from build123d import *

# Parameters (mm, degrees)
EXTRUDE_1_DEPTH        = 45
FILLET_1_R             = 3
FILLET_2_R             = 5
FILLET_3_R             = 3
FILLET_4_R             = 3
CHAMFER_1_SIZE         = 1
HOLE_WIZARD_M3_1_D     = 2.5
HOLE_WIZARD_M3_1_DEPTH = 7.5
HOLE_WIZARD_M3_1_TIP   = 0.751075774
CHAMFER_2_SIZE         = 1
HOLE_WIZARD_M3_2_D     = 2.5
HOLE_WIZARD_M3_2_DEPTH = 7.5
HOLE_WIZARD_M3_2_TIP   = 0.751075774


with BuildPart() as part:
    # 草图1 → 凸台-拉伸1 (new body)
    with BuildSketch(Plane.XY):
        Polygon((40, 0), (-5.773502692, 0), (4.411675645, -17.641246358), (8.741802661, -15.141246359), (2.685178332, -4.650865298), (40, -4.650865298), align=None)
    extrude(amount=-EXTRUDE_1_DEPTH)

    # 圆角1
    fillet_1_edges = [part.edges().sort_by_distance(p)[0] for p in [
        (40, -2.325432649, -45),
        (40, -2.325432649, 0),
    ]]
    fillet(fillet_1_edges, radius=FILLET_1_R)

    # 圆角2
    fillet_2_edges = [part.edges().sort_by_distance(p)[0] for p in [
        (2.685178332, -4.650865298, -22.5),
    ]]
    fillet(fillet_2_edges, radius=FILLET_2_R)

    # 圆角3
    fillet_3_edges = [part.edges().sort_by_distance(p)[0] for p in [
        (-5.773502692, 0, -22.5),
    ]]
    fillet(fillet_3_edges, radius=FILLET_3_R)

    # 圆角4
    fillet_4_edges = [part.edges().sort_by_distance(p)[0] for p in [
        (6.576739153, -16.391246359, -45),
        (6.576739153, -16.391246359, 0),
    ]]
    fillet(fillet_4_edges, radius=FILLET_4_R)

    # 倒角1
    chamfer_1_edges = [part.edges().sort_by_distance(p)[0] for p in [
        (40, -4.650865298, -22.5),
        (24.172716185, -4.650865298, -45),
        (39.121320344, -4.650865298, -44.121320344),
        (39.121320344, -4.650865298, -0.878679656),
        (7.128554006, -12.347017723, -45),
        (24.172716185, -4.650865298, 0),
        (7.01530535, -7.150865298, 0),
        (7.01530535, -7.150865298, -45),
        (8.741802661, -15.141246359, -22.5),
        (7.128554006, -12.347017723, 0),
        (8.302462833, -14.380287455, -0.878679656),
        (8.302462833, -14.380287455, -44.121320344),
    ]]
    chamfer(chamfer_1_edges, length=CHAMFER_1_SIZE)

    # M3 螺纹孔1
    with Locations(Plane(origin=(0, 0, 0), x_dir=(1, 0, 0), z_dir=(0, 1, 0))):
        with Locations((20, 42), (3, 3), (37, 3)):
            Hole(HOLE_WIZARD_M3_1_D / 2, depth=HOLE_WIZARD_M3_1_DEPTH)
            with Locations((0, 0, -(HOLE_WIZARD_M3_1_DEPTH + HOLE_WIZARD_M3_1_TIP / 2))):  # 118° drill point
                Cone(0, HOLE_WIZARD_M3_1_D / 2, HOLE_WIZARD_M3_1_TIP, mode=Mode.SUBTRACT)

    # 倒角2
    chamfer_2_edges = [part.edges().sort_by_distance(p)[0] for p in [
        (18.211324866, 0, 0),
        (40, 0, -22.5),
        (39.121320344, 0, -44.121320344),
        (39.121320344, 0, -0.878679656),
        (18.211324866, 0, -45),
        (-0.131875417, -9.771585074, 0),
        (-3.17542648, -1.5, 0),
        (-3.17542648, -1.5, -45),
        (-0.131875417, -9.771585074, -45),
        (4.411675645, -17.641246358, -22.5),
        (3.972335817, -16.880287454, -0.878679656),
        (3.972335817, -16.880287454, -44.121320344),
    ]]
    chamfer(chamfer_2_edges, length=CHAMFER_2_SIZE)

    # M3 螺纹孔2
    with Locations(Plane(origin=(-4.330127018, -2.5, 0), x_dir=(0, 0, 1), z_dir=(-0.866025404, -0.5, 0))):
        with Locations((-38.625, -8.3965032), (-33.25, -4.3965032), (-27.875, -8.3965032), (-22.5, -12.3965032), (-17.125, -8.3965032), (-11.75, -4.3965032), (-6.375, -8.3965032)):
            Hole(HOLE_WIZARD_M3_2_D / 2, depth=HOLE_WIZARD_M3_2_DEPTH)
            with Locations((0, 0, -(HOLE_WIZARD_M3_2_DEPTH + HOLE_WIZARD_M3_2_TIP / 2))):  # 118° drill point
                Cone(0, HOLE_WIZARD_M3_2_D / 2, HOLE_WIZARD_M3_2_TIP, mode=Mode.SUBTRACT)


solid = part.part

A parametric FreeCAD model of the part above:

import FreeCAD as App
import Part
import Sketcher

V = App.Vector
Q = App.Units.Quantity


def edges_at(feature, points):
    """Names of the edges that pass closest to the given points."""
    edges = feature.Shape.Edges
    near = lambda p: min(range(len(edges)), key=lambda i: edges[i].distToShape(Part.Vertex(*p))[0])
    return sorted({f"Edge{near(p) + 1}" for p in points})

doc = App.newDocument("Part")
body = doc.addObject("PartDesign::Body", "Body")

# Sketch on XY plane
sketch1 = doc.addObject("Sketcher::SketchObject", "Sketch")
body.addObject(sketch1)
sketch1.AttachmentSupport = (doc.XY_Plane, [""])
sketch1.MapMode = "FlatFace"
sketch1.addGeometry(Part.LineSegment(V(40, 0, 0), V(-5.8, 0, 0)), False)
sketch1.addGeometry(Part.LineSegment(V(-5.8, 0, 0), V(4.4, -17.6, 0)), False)
sketch1.addGeometry(Part.LineSegment(V(4.4, -17.6, 0), V(8.7, -15.1, 0)), False)
sketch1.addGeometry(Part.LineSegment(V(8.7, -15.1, 0), V(2.7, -4.7, 0)), False)
sketch1.addGeometry(Part.LineSegment(V(2.7, -4.7, 0), V(40, -4.7, 0)), False)
sketch1.addGeometry(Part.LineSegment(V(40, -4.7, 0), V(40, 0, 0)), False)
sketch1.addConstraint(Sketcher.Constraint("Coincident", 0, 2, 1, 1))
sketch1.addConstraint(Sketcher.Constraint("Coincident", 1, 2, 2, 1))
sketch1.addConstraint(Sketcher.Constraint("Coincident", 2, 2, 3, 1))
sketch1.addConstraint(Sketcher.Constraint("Coincident", 3, 2, 4, 1))
sketch1.addConstraint(Sketcher.Constraint("Coincident", 4, 2, 5, 1))
sketch1.addConstraint(Sketcher.Constraint("Coincident", 5, 2, 0, 1))
sketch1.addConstraint(Sketcher.Constraint("Horizontal", 0))
sketch1.addConstraint(Sketcher.Constraint("Horizontal", 4))
sketch1.addConstraint(Sketcher.Constraint("Vertical", 5))
sketch1.addConstraint(Sketcher.Constraint("PointOnObject", 0, 2, -1))
sketch1.addConstraint(Sketcher.Constraint("Perpendicular", 1, 2))
sketch1.addConstraint(Sketcher.Constraint("Perpendicular", 2, 3))
sketch1.addConstraint(Sketcher.Constraint("Angle", 1, Q("-60 deg")))
sketch1.addConstraint(Sketcher.Constraint("Distance", 2, Q("5 mm")))
sketch1.addConstraint(Sketcher.Constraint("DistanceX", -1, 1, 4, 2, Q("40 mm")))
sketch1.addConstraint(Sketcher.Constraint("DistanceX", 4, 1, 4, 2, Q("37.314822 mm")))
sketch1.addConstraint(Sketcher.Constraint("Distance", 3, Q("12.113249 mm")))
sketch1.addConstraint(Sketcher.Constraint("DistanceX", 0, 2, 0, 1, Q("45.773503 mm")))
pad1 = doc.addObject("PartDesign::Pad", "Pad")
body.addObject(pad1)
pad1.Profile = sketch1
pad1.Length = 45
pad1.Reversed = True
doc.recompute()

fillet = doc.addObject("PartDesign::Fillet", "Fillet")
body.addObject(fillet)
fillet.Base = (pad1, edges_at(pad1, [(40, -2.325, -45), (40, -2.325, 0)]))
fillet.Radius = 3
doc.recompute()

fillet2 = doc.addObject("PartDesign::Fillet", "Fillet001")
body.addObject(fillet2)
fillet2.Base = (fillet, edges_at(fillet, [(2.685, -4.651, -22.5)]))
fillet2.Radius = 5
doc.recompute()

fillet3 = doc.addObject("PartDesign::Fillet", "Fillet002")
body.addObject(fillet3)
fillet3.Base = (fillet2, edges_at(fillet2, [(-5.774, 0, -22.5)]))
fillet3.Radius = 3
doc.recompute()

fillet4 = doc.addObject("PartDesign::Fillet", "Fillet003")
body.addObject(fillet4)
fillet4.Base = (fillet3, edges_at(fillet3, [(6.577, -16.391, -45), (6.577, -16.391, 0)]))
fillet4.Radius = 3
doc.recompute()

chamfer = doc.addObject("PartDesign::Chamfer", "Chamfer")
body.addObject(chamfer)
chamfer.Base = (fillet4, edges_at(fillet4, [
    (40, -4.651, -22.5),
    (24.173, -4.651, -45),
    (39.121, -4.651, -44.121),
    (39.121, -4.651, -0.879),
    (7.129, -12.347, -45),
    (24.173, -4.651, 0),
    (7.015, -7.151, 0),
    (7.015, -7.151, -45),
    (8.742, -15.141, -22.5),
    (7.129, -12.347, 0),
    (8.302, -14.38, -0.879),
    (8.302, -14.38, -44.121),
]))
chamfer.Size = 1

# Sketch on XZ plane
sketch2 = doc.addObject("Sketcher::SketchObject", "Sketch001")
body.addObject(sketch2)
sketch2.AttachmentSupport = (doc.XZ_Plane, [""])
sketch2.MapMode = "FlatFace"
sketch2.addGeometry(Part.Circle(V(20, -42, 0), V(0, 0, 1), 1.2), False)
sketch2.addGeometry(Part.Circle(V(3, -3, 0), V(0, 0, 1), 1.2), False)
sketch2.addGeometry(Part.Circle(V(37, -3, 0), V(0, 0, 1), 1.2), False)
sketch2.addConstraint(Sketcher.Constraint("Equal", 0, 1))
sketch2.addConstraint(Sketcher.Constraint("Equal", 1, 2))
sketch2.addConstraint(Sketcher.Constraint("Horizontal", 1, 3, 2, 3))
sketch2.addConstraint(Sketcher.Constraint("Diameter", 0, Q("2.5 mm")))
sketch2.addConstraint(Sketcher.Constraint("DistanceX", -1, 1, 0, 3, Q("20 mm")))
sketch2.addConstraint(Sketcher.Constraint("DistanceY", 0, 3, -1, 1, Q("42 mm")))
sketch2.addConstraint(Sketcher.Constraint("DistanceX", -1, 1, 1, 3, Q("3 mm")))
sketch2.addConstraint(Sketcher.Constraint("DistanceY", 1, 3, -1, 1, Q("3 mm")))
sketch2.addConstraint(Sketcher.Constraint("DistanceX", -1, 1, 2, 3, Q("37 mm")))
doc.recompute()
hole = doc.addObject("PartDesign::Hole", "Hole")
body.addObject(hole)
hole.Profile = sketch2
hole.ThreadType = "None"
hole.Diameter = 2.5
hole.DepthType = "Dimension"
hole.Depth = 7.5
hole.DrillPoint = "Angled"
hole.DrillPointAngle = 118
hole.Reversed = True
doc.recompute()

chamfer2 = doc.addObject("PartDesign::Chamfer", "Chamfer001")
body.addObject(chamfer2)
chamfer2.Base = (hole, edges_at(hole, [
    (18.211, 0, 0),
    (40, 0, -22.5),
    (39.121, 0, -44.121),
    (39.121, 0, -0.879),
    (18.211, 0, -45),
    (-0.132, -9.772, 0),
    (-3.175, -1.5, 0),
    (-3.175, -1.5, -45),
    (-0.132, -9.772, -45),
    (4.412, -17.641, -22.5),
    (3.972, -16.88, -0.879),
    (3.972, -16.88, -44.121),
]))
chamfer2.Size = 1

# Sketch on an angled plane
sketch3 = doc.addObject("Sketcher::SketchObject", "Sketch002")
body.addObject(sketch3)
sketch3.Placement = App.Placement(V(-4.330127, -2.5, 0), App.Rotation(V(0, 0, 1), V(-0.5, 0.866025404, 0), V(-0.866025404, -0.5, 0), "ZXY"))
sketch3.addGeometry(Part.Circle(V(-38.6, -8.4, 0), V(0, 0, 1), 1.2), False)
sketch3.addGeometry(Part.Circle(V(-33.2, -4.4, 0), V(0, 0, 1), 1.2), False)
sketch3.addGeometry(Part.Circle(V(-27.9, -8.4, 0), V(0, 0, 1), 1.2), False)
sketch3.addGeometry(Part.Circle(V(-22.5, -12.4, 0), V(0, 0, 1), 1.2), False)
sketch3.addGeometry(Part.Circle(V(-17.1, -8.4, 0), V(0, 0, 1), 1.2), False)
sketch3.addGeometry(Part.Circle(V(-11.8, -4.4, 0), V(0, 0, 1), 1.2), False)
sketch3.addGeometry(Part.Circle(V(-6.4, -8.4, 0), V(0, 0, 1), 1.2), False)
sketch3.addConstraint(Sketcher.Constraint("Equal", 0, 1))
sketch3.addConstraint(Sketcher.Constraint("Equal", 1, 2))
sketch3.addConstraint(Sketcher.Constraint("Equal", 2, 3))
sketch3.addConstraint(Sketcher.Constraint("Equal", 3, 4))
sketch3.addConstraint(Sketcher.Constraint("Equal", 4, 5))
sketch3.addConstraint(Sketcher.Constraint("Equal", 5, 6))
sketch3.addConstraint(Sketcher.Constraint("Horizontal", 0, 3, 2, 3))
sketch3.addConstraint(Sketcher.Constraint("Horizontal", 2, 3, 4, 3))
sketch3.addConstraint(Sketcher.Constraint("Horizontal", 1, 3, 5, 3))
sketch3.addConstraint(Sketcher.Constraint("Horizontal", 4, 3, 6, 3))
sketch3.addConstraint(Sketcher.Constraint("Diameter", 0, Q("2.5 mm")))
sketch3.addConstraint(Sketcher.Constraint("DistanceY", 0, 3, 1, 3, Q("4 mm")))
sketch3.addConstraint(Sketcher.Constraint("DistanceY", 3, 3, 2, 3, Q("4 mm")))
sketch3.addConstraint(Sketcher.Constraint("DistanceX", 3, 3, -1, 1, Q("22.5 mm")))
sketch3.addConstraint(Sketcher.Constraint("DistanceX", 0, 3, 4, 3, Q("21.5 mm")))
sketch3.addConstraint(Sketcher.Constraint("DistanceX", 1, 3, 5, 3, Q("21.5 mm")))
sketch3.addConstraint(Sketcher.Constraint("DistanceX", 2, 3, 6, 3, Q("21.5 mm")))
sketch3.addConstraint(Sketcher.Constraint("DistanceX", 1, 3, -1, 1, Q("33.25 mm")))
sketch3.addConstraint(Sketcher.Constraint("DistanceX", 0, 3, 2, 3, Q("10.75 mm")))
sketch3.addConstraint(Sketcher.Constraint("DistanceX", 0, 3, -1, 1, Q("38.625 mm")))
sketch3.addConstraint(Sketcher.Constraint("DistanceY", 0, 3, -1, 1, Q("8.396503 mm")))
doc.recompute()
hole2 = doc.addObject("PartDesign::Hole", "Hole001")
body.addObject(hole2)
hole2.Profile = sketch3
hole2.ThreadType = "None"
hole2.Diameter = 2.5
hole2.DepthType = "Dimension"
hole2.Depth = 7.5
hole2.DrillPoint = "Angled"
hole2.DrillPointAngle = 118

doc.recompute()
